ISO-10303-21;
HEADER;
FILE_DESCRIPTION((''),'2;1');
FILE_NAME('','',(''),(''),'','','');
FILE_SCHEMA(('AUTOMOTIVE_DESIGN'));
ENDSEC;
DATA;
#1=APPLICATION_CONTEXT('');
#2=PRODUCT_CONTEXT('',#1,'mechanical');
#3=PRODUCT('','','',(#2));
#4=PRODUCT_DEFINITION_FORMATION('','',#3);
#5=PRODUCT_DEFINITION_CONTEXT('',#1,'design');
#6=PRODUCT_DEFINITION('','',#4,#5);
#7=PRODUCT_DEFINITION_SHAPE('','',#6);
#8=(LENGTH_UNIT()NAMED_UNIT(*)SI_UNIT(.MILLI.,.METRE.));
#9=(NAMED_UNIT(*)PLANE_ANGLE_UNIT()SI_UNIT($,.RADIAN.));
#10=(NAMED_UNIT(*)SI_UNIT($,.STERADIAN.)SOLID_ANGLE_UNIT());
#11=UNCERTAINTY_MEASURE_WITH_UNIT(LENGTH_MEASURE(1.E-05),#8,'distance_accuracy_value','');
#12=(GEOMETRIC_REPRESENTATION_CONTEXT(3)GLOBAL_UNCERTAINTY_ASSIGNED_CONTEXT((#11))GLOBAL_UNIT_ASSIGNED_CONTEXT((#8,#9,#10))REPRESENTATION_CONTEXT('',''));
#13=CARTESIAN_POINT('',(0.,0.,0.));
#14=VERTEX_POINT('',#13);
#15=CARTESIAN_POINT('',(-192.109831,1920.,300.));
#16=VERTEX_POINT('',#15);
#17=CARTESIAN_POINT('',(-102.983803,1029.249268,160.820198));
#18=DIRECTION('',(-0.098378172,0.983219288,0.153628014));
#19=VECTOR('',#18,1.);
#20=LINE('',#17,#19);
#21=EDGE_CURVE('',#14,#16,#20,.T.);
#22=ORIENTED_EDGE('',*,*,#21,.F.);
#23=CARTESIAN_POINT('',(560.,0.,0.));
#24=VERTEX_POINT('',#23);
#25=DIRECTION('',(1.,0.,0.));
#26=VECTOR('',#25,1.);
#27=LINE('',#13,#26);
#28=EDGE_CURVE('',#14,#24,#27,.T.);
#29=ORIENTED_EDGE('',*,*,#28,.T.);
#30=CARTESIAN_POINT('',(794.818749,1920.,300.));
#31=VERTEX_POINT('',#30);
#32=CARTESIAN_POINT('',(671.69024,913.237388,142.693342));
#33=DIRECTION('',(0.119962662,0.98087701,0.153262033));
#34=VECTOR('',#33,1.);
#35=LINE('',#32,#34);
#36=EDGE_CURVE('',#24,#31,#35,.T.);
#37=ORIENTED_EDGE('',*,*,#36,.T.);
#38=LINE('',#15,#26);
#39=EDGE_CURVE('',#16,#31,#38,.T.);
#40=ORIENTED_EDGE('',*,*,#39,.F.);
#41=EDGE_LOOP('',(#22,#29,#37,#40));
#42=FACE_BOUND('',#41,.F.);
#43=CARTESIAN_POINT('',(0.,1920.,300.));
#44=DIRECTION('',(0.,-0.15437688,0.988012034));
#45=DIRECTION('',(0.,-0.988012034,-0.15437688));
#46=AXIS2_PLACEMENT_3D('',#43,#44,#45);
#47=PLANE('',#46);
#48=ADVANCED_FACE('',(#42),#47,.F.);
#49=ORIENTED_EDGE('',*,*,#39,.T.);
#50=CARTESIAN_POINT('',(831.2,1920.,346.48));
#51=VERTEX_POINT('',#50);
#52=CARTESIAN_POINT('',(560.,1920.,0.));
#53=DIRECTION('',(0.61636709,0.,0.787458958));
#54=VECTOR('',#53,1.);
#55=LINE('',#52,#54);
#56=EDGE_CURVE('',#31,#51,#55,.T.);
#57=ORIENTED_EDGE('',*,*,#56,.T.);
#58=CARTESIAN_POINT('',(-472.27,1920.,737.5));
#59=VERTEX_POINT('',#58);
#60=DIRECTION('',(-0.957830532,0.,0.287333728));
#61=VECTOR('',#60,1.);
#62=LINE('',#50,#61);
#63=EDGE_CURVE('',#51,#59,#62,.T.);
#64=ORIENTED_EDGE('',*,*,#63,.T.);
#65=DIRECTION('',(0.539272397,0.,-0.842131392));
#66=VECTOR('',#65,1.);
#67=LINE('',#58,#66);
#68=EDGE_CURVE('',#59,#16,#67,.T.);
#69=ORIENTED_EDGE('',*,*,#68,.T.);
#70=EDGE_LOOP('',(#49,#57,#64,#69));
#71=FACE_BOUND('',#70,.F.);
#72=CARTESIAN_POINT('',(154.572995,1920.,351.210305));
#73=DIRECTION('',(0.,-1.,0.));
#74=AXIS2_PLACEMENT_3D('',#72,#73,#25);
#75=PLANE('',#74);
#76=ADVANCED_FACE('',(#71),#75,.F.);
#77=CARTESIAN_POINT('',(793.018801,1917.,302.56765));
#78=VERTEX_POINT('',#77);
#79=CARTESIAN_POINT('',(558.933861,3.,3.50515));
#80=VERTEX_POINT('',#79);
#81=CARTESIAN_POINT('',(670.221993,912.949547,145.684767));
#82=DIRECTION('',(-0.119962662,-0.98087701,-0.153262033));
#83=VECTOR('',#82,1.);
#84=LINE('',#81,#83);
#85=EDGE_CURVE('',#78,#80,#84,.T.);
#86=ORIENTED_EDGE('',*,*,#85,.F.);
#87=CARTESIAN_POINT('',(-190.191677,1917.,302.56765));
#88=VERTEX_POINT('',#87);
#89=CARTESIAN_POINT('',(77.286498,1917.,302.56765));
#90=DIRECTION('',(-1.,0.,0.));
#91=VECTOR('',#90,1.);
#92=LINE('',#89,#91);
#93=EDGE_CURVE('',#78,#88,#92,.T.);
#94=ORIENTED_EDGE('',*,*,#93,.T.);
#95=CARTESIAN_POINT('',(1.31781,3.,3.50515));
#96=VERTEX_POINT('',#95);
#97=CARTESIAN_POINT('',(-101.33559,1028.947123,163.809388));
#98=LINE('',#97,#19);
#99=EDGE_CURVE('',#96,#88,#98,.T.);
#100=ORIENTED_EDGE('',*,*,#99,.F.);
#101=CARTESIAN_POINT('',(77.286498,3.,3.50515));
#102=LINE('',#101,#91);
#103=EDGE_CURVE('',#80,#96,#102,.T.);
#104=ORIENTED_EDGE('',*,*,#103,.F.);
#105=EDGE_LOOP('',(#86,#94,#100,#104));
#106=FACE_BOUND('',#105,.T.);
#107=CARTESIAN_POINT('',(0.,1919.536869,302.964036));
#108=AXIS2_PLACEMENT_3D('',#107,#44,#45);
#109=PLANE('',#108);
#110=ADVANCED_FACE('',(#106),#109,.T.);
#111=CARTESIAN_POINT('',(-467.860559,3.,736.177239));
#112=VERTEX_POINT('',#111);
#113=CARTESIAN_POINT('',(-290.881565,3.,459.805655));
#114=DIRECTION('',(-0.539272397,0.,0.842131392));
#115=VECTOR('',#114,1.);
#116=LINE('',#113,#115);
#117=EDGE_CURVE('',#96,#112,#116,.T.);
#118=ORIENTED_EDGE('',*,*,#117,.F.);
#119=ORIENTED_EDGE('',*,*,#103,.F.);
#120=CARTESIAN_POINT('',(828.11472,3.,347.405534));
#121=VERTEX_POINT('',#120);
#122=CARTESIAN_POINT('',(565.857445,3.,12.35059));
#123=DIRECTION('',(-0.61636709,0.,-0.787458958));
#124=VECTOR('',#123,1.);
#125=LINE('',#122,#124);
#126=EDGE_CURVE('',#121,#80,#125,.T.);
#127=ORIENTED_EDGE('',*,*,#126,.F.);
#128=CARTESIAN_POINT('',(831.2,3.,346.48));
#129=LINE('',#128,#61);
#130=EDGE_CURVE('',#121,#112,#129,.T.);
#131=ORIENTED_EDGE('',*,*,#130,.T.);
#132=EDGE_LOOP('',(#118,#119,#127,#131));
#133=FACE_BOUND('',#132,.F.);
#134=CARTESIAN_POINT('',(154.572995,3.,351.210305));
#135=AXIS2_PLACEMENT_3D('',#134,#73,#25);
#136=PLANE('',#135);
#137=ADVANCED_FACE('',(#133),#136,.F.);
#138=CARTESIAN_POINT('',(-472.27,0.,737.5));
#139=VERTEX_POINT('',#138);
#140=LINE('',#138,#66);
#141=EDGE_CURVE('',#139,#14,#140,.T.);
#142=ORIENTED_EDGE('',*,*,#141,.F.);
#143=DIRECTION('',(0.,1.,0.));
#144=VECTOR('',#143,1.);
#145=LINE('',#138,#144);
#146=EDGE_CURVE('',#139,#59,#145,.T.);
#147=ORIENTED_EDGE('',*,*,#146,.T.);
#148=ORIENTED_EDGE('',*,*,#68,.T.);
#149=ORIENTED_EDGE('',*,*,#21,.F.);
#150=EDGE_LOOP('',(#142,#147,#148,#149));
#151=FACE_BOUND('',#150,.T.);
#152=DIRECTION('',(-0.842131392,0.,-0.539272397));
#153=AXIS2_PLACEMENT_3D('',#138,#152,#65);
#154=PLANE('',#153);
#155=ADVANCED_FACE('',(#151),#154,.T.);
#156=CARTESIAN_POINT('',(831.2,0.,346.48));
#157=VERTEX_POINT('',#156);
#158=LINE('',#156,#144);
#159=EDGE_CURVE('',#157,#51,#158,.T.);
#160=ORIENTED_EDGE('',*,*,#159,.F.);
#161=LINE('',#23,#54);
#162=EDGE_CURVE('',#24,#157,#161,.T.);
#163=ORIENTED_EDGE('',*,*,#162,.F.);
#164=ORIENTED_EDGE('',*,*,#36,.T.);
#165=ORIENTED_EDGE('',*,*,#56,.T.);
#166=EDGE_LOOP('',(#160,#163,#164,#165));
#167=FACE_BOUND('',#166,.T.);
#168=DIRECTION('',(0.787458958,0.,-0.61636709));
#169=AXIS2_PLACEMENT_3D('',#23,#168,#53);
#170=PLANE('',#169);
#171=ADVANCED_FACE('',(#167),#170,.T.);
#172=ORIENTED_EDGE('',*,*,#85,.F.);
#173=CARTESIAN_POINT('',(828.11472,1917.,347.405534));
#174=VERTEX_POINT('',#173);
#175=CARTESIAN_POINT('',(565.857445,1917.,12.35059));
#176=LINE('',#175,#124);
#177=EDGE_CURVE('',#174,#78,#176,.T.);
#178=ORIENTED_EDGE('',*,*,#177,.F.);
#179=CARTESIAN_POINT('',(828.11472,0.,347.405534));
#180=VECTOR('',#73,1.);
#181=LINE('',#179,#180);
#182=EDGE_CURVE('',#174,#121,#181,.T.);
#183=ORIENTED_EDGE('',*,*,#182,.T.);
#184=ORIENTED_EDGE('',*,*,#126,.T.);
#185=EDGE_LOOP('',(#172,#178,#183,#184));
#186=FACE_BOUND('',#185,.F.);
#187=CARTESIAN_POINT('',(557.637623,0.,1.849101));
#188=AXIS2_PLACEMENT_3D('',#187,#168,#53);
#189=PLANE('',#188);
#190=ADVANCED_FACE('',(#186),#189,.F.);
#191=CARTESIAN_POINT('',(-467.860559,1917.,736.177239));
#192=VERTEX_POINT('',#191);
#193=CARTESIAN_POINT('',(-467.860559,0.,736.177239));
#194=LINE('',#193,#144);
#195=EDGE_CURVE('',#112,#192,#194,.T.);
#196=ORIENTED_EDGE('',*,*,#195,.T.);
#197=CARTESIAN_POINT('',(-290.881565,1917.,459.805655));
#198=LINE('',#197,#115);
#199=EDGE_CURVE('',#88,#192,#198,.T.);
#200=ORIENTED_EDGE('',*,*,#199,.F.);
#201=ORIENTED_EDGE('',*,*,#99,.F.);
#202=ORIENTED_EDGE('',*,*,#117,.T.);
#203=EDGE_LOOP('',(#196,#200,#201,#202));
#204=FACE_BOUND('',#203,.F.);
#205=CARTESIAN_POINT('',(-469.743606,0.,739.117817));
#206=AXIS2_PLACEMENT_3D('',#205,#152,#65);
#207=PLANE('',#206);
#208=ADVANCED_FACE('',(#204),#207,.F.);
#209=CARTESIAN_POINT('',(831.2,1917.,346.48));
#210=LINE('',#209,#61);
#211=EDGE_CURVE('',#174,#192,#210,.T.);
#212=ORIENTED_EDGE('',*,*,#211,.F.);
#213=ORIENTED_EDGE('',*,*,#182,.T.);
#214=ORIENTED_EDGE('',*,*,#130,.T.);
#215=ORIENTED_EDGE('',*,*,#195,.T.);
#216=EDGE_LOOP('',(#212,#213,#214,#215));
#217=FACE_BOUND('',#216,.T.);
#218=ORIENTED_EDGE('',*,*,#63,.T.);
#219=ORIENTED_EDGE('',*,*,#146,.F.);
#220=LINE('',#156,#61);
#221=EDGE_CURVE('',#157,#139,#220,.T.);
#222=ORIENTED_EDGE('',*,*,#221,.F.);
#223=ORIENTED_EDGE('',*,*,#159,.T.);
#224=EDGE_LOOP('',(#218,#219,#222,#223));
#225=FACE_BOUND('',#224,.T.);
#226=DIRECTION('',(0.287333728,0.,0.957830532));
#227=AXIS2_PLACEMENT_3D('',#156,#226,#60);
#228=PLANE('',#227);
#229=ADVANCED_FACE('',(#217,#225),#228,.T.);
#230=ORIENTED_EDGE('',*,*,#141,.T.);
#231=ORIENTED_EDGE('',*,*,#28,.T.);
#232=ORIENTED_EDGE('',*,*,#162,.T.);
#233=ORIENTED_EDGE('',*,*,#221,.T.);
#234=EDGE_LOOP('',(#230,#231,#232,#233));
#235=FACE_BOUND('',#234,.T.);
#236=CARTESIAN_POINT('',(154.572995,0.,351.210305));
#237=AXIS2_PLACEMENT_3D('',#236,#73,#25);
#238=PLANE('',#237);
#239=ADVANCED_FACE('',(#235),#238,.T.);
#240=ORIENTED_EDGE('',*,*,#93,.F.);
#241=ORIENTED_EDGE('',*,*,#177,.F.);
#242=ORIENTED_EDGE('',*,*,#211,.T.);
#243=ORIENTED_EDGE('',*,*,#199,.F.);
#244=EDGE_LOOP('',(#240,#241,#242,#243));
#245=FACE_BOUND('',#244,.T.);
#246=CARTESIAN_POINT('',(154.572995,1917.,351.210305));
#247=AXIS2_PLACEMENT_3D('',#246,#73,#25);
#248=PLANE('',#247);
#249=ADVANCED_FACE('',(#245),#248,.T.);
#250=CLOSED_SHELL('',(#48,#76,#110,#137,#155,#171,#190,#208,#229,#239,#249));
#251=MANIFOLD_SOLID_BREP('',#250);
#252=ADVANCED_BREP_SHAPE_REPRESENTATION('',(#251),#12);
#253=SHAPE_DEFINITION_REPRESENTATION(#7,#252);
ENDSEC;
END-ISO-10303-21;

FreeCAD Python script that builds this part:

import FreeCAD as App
import Part
import Sketcher
from FreeCAD import Vector


def faces_at(feature, points):
    """Names of the faces that lie closest to the given points."""
    faces = feature.Shape.Faces
    near = lambda p: min(range(len(faces)), key=lambda i: faces[i].distToShape(Part.Vertex(*p))[0])
    return sorted({f"Face{near(p) + 1}" for p in points})


def add_polygon(sketch, points):
    """Adds a closed chain of lines whose ends are joined by coincident constraints."""
    first, n = sketch.GeometryCount, len(points)
    for a, b in zip(points, points[1:] + points[:1]):
        sketch.addGeometry(Part.LineSegment(App.Vector(*a, 0), App.Vector(*b, 0)), False)
    for i in range(n):
        sketch.addConstraint(Sketcher.Constraint("Coincident", first + i, 2, first + (i + 1) % n, 1))

doc = App.newDocument("Part")
body = doc.addObject("PartDesign::Body", "Body")

# Sketch on XZ plane
sketch1 = body.newObject("Sketcher::SketchObject", "Sketch")
sketch1.AttachmentSupport = (doc.getObject("XZ_Plane"), [""])
sketch1.MapMode = "FlatFace"
add_polygon(sketch1, [(-472.27, 737.5), (0, 0), (560, 0), (831.2, 346.48)])  # lines 0-3
sketch1.addConstraint(Sketcher.Constraint("Horizontal", 1))
sketch1.addConstraint(Sketcher.Constraint("Coincident", 0, 2, -1, 1))
sketch1.addConstraint(Sketcher.Constraint("DistanceX", 1, 1, 1, 2, 560.0))
sketch1.addConstraint(Sketcher.Constraint("DistanceX", -1, 1, 2, 2, 831.2))
sketch1.addConstraint(Sketcher.Constraint("DistanceY", -1, 1, 3, 2, 737.5))
sketch1.addConstraint(Sketcher.Constraint("DistanceY", -1, 1, 2, 2, 346.48))
sketch1.addConstraint(Sketcher.Constraint("DistanceX", 3, 2, -1, 1, 472.27))
pad1 = body.newObject("PartDesign::Pad", "Pad")
pad1.Profile = sketch1
pad1.Length = 1920
pad1.Reversed = True

# Sketch on YZ plane
sketch2 = body.newObject("Sketcher::SketchObject", "Sketch001")
sketch2.AttachmentSupport = (doc.getObject("YZ_Plane"), [""])
sketch2.MapMode = "FlatFace"
add_polygon(sketch2, [(0, 0), (1920, 0), (1920, 300)])  # lines 0-2
sketch2.addConstraint(Sketcher.Constraint("Horizontal", 0))
sketch2.addConstraint(Sketcher.Constraint("Vertical", 1))
sketch2.addConstraint(Sketcher.Constraint("Coincident", 2, 2, -1, 1))
sketch2.addConstraint(Sketcher.Constraint("DistanceX", 0, 1, 0, 2, 1920.0))
sketch2.addConstraint(Sketcher.Constraint("DistanceY", 1, 1, 1, 2, 300.0))
pocket1 = body.newObject("PartDesign::Pocket", "Pocket")
pocket1.Profile = sketch2
pocket1.Type = "ThroughAll"
pocket1.Midplane = True
doc.recompute()

thickness = body.newObject("PartDesign::Thickness", "Thickness")
thickness.Base = (pocket1, faces_at(pocket1, [(179.465, 960, 541.99)]))
thickness.Value = 3
thickness.Reversed = True
thickness.Join = "Arc"

doc.recompute()
